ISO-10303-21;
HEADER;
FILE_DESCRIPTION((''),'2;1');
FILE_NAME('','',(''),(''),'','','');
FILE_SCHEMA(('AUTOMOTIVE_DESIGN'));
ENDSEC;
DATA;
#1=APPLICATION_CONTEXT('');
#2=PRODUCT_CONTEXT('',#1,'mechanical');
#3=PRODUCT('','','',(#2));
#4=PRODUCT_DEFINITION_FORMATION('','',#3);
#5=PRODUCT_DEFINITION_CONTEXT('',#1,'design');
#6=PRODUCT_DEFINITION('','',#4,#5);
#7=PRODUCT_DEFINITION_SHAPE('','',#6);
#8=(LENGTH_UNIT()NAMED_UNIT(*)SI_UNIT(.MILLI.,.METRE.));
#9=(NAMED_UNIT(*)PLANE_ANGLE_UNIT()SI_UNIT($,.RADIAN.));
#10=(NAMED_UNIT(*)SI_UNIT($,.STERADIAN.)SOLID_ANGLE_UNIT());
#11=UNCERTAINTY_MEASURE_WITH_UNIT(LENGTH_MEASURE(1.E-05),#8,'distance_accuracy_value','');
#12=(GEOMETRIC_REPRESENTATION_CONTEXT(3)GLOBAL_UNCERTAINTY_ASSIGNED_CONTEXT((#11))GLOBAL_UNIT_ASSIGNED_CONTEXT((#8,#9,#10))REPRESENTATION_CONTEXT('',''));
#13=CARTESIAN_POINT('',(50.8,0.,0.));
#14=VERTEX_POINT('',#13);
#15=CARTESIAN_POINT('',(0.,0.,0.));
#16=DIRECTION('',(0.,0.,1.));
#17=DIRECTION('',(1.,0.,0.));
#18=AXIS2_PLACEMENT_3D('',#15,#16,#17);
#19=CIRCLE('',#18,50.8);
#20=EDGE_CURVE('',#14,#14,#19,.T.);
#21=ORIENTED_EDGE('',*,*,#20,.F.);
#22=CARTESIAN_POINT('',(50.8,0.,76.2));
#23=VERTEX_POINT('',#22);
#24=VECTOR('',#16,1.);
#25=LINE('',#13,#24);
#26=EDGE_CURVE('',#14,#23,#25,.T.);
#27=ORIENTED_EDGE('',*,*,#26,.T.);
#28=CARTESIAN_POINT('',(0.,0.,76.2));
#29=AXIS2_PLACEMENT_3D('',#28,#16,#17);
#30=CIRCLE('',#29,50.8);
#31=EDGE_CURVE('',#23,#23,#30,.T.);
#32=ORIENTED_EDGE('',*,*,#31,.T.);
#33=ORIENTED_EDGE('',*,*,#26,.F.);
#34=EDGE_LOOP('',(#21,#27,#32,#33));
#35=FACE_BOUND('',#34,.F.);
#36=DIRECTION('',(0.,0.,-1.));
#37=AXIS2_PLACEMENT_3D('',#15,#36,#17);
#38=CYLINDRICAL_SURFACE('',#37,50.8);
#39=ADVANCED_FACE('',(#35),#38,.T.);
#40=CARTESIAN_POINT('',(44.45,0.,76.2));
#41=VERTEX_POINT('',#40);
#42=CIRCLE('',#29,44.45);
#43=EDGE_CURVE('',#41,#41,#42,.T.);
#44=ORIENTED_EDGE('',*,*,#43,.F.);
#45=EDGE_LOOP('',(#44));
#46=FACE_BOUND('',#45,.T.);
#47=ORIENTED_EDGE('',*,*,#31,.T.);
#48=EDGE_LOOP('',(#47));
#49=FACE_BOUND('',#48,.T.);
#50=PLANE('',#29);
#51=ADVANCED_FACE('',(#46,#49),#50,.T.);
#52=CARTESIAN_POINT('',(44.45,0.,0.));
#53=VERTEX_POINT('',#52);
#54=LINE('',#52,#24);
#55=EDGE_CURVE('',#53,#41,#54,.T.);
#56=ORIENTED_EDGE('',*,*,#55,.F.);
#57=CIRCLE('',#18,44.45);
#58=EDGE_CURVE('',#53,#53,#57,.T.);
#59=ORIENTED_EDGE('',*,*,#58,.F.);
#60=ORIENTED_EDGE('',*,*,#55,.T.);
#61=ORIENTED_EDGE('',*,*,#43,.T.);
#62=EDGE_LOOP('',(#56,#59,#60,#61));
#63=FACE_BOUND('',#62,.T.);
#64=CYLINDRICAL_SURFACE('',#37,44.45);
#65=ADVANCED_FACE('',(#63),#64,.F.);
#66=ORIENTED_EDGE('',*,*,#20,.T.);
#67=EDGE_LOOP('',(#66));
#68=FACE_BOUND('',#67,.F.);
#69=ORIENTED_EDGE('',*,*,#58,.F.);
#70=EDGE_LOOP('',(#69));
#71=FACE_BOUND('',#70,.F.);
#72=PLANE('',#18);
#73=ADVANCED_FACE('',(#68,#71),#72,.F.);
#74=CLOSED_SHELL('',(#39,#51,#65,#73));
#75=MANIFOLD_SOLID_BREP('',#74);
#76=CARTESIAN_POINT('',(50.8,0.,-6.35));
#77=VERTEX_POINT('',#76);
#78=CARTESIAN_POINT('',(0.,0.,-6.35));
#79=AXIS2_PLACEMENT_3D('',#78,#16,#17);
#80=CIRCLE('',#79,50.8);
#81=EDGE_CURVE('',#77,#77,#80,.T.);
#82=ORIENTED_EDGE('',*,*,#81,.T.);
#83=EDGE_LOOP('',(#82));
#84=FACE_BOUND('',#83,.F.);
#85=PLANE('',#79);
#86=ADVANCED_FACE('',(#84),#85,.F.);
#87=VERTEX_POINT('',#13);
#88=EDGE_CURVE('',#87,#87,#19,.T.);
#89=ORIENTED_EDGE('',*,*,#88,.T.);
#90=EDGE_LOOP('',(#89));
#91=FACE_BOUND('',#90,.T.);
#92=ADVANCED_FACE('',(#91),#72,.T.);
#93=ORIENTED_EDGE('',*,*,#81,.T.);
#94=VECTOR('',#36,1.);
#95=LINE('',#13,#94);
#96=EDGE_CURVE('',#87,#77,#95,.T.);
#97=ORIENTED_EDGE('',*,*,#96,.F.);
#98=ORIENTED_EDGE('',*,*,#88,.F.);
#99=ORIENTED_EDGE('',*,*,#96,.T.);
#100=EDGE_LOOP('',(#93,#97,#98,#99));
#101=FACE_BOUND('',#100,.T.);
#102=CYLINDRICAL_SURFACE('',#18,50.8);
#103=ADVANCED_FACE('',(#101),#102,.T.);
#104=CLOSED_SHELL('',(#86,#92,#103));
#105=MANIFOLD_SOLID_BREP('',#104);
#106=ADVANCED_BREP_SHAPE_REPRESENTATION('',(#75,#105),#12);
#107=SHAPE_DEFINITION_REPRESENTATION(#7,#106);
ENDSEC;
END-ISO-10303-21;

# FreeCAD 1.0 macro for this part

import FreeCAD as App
import Part
import Sketcher

V = App.Vector
Q = App.Units.Quantity

doc = App.newDocument("Part")
params = doc.addObject("Spreadsheet::Sheet", "Params")
for row, (alias, value) in enumerate([
    ("sketch1_diameter", "4 in"),
    ("sketch1_diameter2", "3.5 in"),
    ("pad1_length", "3 in"),
    ("sketch2_diameter", "4 in"),
    ("pad2_length", "0.25 in"),
], start=1):
    params.set(f"A{row}", alias)
    params.set(f"B{row}", "=" + value)
    params.setAlias(f"B{row}", alias)

body = doc.addObject("PartDesign::Body", "Body")

# Sketch on XY plane
sketch1 = body.newObject("Sketcher::SketchObject", "Sketch")
sketch1.AttachmentSupport = (doc.getObject("XY_Plane"), [""])
sketch1.MapMode = "FlatFace"
sketch1.addGeometry(Part.Circle(V(0, 0, 0), V(0, 0, 1), 51), False)
sketch1.addGeometry(Part.Circle(V(0, 0, 0), V(0, 0, 1), 44), False)
sketch1.addConstraint(Sketcher.Constraint("Coincident", 0, 3, -1, 1))
sketch1.addConstraint(Sketcher.Constraint("Coincident", 1, 3, -1, 1))
sketch1.addConstraint(Sketcher.Constraint("Diameter", 0, Q("4 in")))
sketch1.addConstraint(Sketcher.Constraint("Diameter", 1, Q("3.5 in")))
sketch1.setExpression("Constraints[2]", "Params.sketch1_diameter")
sketch1.setExpression("Constraints[3]", "Params.sketch1_diameter2")
pad1 = body.newObject("PartDesign::Pad", "Pad")
pad1.Profile = sketch1
pad1.setExpression("Length", "Params.pad1_length")
body2 = doc.addObject("PartDesign::Body", "Body001")

# Sketch on XY plane
sketch2 = body2.newObject("Sketcher::SketchObject", "Sketch001")
sketch2.AttachmentSupport = (doc.getObject("XY_Plane001"), [""])
sketch2.MapMode = "FlatFace"
sketch2.addGeometry(Part.Circle(V(0, 0, 0), V(0, 0, 1), 51), False)
sketch2.addConstraint(Sketcher.Constraint("Coincident", 0, 3, -1, 1))
sketch2.addConstraint(Sketcher.Constraint("Diameter", 0, Q("4 in")))
sketch2.setExpression("Constraints[1]", "Params.sketch2_diameter")
pad2 = body2.newObject("PartDesign::Pad", "Pad001")
pad2.Profile = sketch2
pad2.setExpression("Length", "Params.pad2_length")
pad2.Reversed = True

doc.recompute()
